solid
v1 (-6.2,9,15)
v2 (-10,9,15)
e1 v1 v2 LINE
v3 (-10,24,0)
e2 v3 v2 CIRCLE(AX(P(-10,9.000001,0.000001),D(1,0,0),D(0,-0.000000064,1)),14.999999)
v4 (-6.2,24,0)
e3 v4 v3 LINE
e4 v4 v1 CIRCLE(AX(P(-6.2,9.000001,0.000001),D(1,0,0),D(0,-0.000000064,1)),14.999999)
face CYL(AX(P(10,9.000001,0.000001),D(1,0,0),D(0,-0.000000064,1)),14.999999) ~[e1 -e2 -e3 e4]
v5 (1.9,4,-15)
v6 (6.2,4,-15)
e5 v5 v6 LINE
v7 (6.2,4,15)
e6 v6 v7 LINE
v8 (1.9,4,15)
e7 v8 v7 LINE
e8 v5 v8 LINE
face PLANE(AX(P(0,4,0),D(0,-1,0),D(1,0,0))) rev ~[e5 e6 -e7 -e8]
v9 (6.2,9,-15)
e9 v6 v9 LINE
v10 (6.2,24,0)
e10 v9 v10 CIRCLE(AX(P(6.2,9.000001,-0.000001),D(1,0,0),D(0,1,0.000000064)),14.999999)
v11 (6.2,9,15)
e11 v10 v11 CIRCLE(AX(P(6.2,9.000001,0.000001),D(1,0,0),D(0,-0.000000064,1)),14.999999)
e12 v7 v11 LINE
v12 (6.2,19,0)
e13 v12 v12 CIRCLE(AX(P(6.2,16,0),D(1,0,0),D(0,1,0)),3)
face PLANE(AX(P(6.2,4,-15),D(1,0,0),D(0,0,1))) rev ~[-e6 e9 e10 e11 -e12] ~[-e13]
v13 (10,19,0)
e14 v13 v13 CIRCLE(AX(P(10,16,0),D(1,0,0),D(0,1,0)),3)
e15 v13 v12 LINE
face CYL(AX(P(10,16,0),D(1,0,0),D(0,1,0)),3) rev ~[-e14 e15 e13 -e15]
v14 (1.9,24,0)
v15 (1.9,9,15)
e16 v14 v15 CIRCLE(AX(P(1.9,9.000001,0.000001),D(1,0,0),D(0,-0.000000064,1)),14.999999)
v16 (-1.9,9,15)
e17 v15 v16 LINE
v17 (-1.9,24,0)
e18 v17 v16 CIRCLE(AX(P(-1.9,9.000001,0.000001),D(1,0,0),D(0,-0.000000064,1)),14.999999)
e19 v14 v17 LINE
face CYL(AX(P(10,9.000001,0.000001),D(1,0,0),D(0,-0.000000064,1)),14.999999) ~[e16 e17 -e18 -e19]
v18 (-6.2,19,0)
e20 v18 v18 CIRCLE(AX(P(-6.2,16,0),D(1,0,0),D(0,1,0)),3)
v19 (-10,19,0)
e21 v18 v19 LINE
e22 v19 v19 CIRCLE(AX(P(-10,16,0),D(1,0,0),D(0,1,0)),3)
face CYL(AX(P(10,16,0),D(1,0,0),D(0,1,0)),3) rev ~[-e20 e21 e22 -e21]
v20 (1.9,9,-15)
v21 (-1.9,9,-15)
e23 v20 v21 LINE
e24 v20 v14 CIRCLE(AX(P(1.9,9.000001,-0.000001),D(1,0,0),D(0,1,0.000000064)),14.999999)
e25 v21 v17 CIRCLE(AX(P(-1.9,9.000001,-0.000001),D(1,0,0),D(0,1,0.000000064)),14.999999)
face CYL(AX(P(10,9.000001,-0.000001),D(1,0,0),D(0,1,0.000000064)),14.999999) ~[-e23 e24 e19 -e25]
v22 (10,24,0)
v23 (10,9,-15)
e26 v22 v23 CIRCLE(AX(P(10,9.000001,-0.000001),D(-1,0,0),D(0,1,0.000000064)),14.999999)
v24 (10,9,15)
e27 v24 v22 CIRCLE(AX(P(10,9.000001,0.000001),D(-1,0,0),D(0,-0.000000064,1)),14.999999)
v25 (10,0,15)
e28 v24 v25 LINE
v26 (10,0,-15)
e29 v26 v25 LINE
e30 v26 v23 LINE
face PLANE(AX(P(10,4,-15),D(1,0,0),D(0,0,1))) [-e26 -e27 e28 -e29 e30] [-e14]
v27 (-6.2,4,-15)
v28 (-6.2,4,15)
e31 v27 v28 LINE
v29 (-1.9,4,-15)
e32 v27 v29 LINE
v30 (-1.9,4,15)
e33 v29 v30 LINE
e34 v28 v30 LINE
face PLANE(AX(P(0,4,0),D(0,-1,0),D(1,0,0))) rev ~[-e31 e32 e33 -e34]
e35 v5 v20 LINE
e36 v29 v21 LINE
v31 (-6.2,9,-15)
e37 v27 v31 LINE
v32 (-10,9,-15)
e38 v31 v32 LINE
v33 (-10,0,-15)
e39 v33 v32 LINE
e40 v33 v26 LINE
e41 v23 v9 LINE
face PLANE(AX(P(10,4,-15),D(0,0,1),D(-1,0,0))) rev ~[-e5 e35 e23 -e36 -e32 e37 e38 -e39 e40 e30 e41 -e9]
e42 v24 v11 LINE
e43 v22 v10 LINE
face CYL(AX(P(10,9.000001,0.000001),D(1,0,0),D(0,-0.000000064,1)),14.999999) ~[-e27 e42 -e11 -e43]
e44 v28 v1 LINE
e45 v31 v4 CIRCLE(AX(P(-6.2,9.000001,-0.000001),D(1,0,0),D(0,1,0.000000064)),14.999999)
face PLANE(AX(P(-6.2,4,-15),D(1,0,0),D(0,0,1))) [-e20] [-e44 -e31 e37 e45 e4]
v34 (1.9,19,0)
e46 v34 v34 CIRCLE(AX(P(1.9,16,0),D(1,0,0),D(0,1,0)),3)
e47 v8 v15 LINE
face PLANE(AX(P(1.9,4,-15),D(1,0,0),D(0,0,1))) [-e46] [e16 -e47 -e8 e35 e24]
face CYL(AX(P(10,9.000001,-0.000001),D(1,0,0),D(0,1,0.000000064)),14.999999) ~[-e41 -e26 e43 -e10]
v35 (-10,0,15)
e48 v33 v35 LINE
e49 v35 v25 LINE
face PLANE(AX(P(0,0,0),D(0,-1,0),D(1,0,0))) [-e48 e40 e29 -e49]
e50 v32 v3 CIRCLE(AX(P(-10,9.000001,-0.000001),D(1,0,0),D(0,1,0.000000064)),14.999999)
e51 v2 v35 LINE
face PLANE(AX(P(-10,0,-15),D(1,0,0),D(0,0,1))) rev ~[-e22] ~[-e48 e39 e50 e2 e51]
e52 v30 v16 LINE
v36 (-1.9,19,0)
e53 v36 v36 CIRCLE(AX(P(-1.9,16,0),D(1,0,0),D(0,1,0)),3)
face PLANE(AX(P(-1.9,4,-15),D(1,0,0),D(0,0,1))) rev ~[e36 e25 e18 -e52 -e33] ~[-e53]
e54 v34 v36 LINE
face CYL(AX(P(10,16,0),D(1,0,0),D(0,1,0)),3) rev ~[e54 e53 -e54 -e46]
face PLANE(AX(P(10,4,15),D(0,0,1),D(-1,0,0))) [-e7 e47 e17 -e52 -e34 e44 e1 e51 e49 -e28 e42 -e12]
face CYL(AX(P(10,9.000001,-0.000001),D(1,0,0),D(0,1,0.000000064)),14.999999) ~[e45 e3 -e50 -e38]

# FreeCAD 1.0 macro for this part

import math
import FreeCAD as App
import Part
import Sketcher
Q = App.Units.Quantity


def add_polygon(sketch, points):
    """Adds a closed chain of lines whose ends are joined by coincident constraints."""
    first, n = sketch.GeometryCount, len(points)
    for a, b in zip(points, points[1:] + points[:1]):
        sketch.addGeometry(Part.LineSegment(App.Vector(*a, 0), App.Vector(*b, 0)), False)
    for i in range(n):
        sketch.addConstraint(Sketcher.Constraint("Coincident", first + i, 2, first + (i + 1) % n, 1))

doc = App.newDocument("Part")
params = doc.addObject("Spreadsheet::Sheet", "Params")
for row, (alias, value) in enumerate([
    ("sketch1_width", "20 mm"),
    ("sketch1_height", "30 mm"),
    ("pad1_length", "4 mm"),
    ("sketch2_height", "30 mm"),
    ("sketch2_width", "3.8 mm"),
    ("pad2_length", "20 mm"),
    ("sketch3_radius", "14.999999 mm"),
    ("pocket1_length", "25 mm"),
    ("sketch4_diameter", "6 mm"),
    ("pocket2_length", "25 mm"),
], start=1):
    params.set(f"A{row}", alias)
    params.set(f"B{row}", "=" + value)
    params.setAlias(f"B{row}", alias)

body = doc.addObject("PartDesign::Body", "Body")

# Sketch on XZ plane
sketch1 = doc.addObject("Sketcher::SketchObject", "Sketch")
body.addObject(sketch1)
sketch1.AttachmentSupport = (doc.XZ_Plane, [""])
sketch1.MapMode = "FlatFace"
add_polygon(sketch1, [(-10, 15), (-10, -15), (10, -15), (10, 15)])  # lines 0-3
sketch1.addConstraint(Sketcher.Constraint("Vertical", 0))
sketch1.addConstraint(Sketcher.Constraint("Horizontal", 1))
sketch1.addConstraint(Sketcher.Constraint("Vertical", 2))
sketch1.addConstraint(Sketcher.Constraint("Horizontal", 3))
sketch1.addConstraint(Sketcher.Constraint("Symmetric", 0, 2, 2, 2, -1, 1))
sketch1.addConstraint(Sketcher.Constraint("DistanceX", 1, 1, 1, 2, Q("20 mm")))
sketch1.addConstraint(Sketcher.Constraint("DistanceY", 0, 2, 0, 1, Q("30 mm")))
sketch1.setExpression("Constraints[9]", "Params.sketch1_width")
sketch1.setExpression("Constraints[10]", "Params.sketch1_height")
pad1 = doc.addObject("PartDesign::Pad", "Pad")
body.addObject(pad1)
pad1.Profile = sketch1
pad1.setExpression("Length", "Params.pad1_length")
pad1.Reversed = True

# Sketch on XZ plane
sketch2 = doc.addObject("Sketcher::SketchObject", "Sketch001")
body.addObject(sketch2)
sketch2.AttachmentSupport = (doc.XZ_Plane, [""])
sketch2.MapMode = "FlatFace"
sketch2.AttachmentOffset = App.Placement(App.Vector(0, 0, -4), App.Rotation())
add_polygon(sketch2, [(10, 15), (10, -15), (6.2, -15), (6.2, 15)])  # lines 0-3
add_polygon(sketch2, [(-6.2, 15), (-6.2, -15), (-10, -15), (-10, 15)])  # lines 4-7
add_polygon(sketch2, [(1.9, 15), (1.9, -15), (-1.9, -15), (-1.9, 15)])  # lines 8-11
sketch2.addConstraint(Sketcher.Constraint("Vertical", 0))
sketch2.addConstraint(Sketcher.Constraint("Horizontal", 1))
sketch2.addConstraint(Sketcher.Constraint("Vertical", 2))
sketch2.addConstraint(Sketcher.Constraint("Horizontal", 3))
sketch2.addConstraint(Sketcher.Constraint("Vertical", 4))
sketch2.addConstraint(Sketcher.Constraint("Horizontal", 5))
sketch2.addConstraint(Sketcher.Constraint("Vertical", 6))
sketch2.addConstraint(Sketcher.Constraint("Horizontal", 7))
sketch2.addConstraint(Sketcher.Constraint("Vertical", 8))
sketch2.addConstraint(Sketcher.Constraint("Horizontal", 9))
sketch2.addConstraint(Sketcher.Constraint("Vertical", 10))
sketch2.addConstraint(Sketcher.Constraint("Horizontal", 11))
sketch2.addConstraint(Sketcher.Constraint("Symmetric", 2, 2, 4, 2, -1, 1))
sketch2.addConstraint(Sketcher.Constraint("Symmetric", 0, 2, 6, 2, -1, 1))
sketch2.addConstraint(Sketcher.Constraint("Symmetric", 8, 2, 10, 2, -1, 1))
sketch2.addConstraint(Sketcher.Constraint("Horizontal", 1, 2, 4, 2))
sketch2.addConstraint(Sketcher.Constraint("Horizontal", 5, 2, 8, 2))
sketch2.addConstraint(Sketcher.Constraint("Equal", 7, 9))
sketch2.addConstraint(Sketcher.Constraint("DistanceY", 0, 2, 0, 1, Q("30 mm")))
sketch2.addConstraint(Sketcher.Constraint("DistanceX", 1, 2, 1, 1, Q("3.8 mm")))
sketch2.addConstraint(Sketcher.Constraint("DistanceX", -1, 1, 0, 2, Q("10 mm")))
sketch2.setExpression("Constraints[30]", "Params.sketch2_height")
sketch2.setExpression("Constraints[31]", "Params.sketch2_width")
pad2 = doc.addObject("PartDesign::Pad", "Pad001")
body.addObject(pad2)
pad2.Profile = sketch2
pad2.setExpression("Length", "Params.pad2_length")
pad2.Reversed = True

# Sketch on YZ plane
sketch3 = doc.addObject("Sketcher::SketchObject", "Sketch002")
body.addObject(sketch3)
sketch3.AttachmentSupport = (doc.YZ_Plane, [""])
sketch3.MapMode = "FlatFace"
sketch3.AttachmentOffset = App.Placement(App.Vector(0, 0, 10), App.Rotation())
sketch3.addGeometry(Part.ArcOfCircle(Part.Circle(App.Vector(9, 0, 0), App.Vector(0, 0, 1), 15), math.radians(0), math.radians(90)), False)
sketch3.addGeometry(Part.LineSegment(App.Vector(24, 0, 0), App.Vector(24, 15, 0)), False)
sketch3.addGeometry(Part.LineSegment(App.Vector(24, 15, 0), App.Vector(9, 15, 0)), False)
sketch3.addGeometry(Part.LineSegment(App.Vector(24, -15, 0), App.Vector(24, 0, 0)), False)
sketch3.addGeometry(Part.ArcOfCircle(Part.Circle(App.Vector(9, 0, 0), App.Vector(0, 0, 1), 15), math.radians(-90), math.radians(0)), False)
sketch3.addGeometry(Part.LineSegment(App.Vector(9, -15, 0), App.Vector(24, -15, 0)), False)
sketch3.addConstraint(Sketcher.Constraint("Tangent", 0, 1, 1, 1))
sketch3.addConstraint(Sketcher.Constraint("Coincident", 1, 2, 2, 1))
sketch3.addConstraint(Sketcher.Constraint("Tangent", 2, 2, 0, 2))
sketch3.addConstraint(Sketcher.Constraint("Tangent", 3, 2, 4, 2))
sketch3.addConstraint(Sketcher.Constraint("Tangent", 4, 1, 5, 1))
sketch3.addConstraint(Sketcher.Constraint("Coincident", 5, 2, 3, 1))
sketch3.addConstraint(Sketcher.Constraint("Vertical", 1))
sketch3.addConstraint(Sketcher.Constraint("Horizontal", 2))
sketch3.addConstraint(Sketcher.Constraint("Vertical", 3))
sketch3.addConstraint(Sketcher.Constraint("Horizontal", 5))
sketch3.addConstraint(Sketcher.Constraint("Coincident", 4, 3, 0, 3))
sketch3.addConstraint(Sketcher.Constraint("Equal", 0, 4))
sketch3.addConstraint(Sketcher.Constraint("PointOnObject", 0, 3, -1))
sketch3.addConstraint(Sketcher.Constraint("Radius", 0, Q("14.999999 mm")))
sketch3.addConstraint(Sketcher.Constraint("DistanceX", -1, 1, 0, 3, Q("9.000001 mm")))
sketch3.setExpression("Constraints[13]", "Params.sketch3_radius")
pocket1 = doc.addObject("PartDesign::Pocket", "Pocket")
body.addObject(pocket1)
pocket1.Profile = sketch3
pocket1.setExpression("Length", "Params.pocket1_length")

# Sketch on YZ plane
sketch4 = doc.addObject("Sketcher::SketchObject", "Sketch003")
body.addObject(sketch4)
sketch4.AttachmentSupport = (doc.YZ_Plane, [""])
sketch4.MapMode = "FlatFace"
sketch4.AttachmentOffset = App.Placement(App.Vector(0, 0, 10), App.Rotation())
sketch4.addGeometry(Part.Circle(App.Vector(16, 0, 0), App.Vector(0, 0, 1), 3), False)
sketch4.addConstraint(Sketcher.Constraint("PointOnObject", 0, 3, -1))
sketch4.addConstraint(Sketcher.Constraint("Diameter", 0, Q("6 mm")))
sketch4.addConstraint(Sketcher.Constraint("DistanceX", -1, 1, 0, 3, Q("16 mm")))
sketch4.setExpression("Constraints[1]", "Params.sketch4_diameter")
pocket2 = doc.addObject("PartDesign::Pocket", "Pocket001")
body.addObject(pocket2)
pocket2.Profile = sketch4
pocket2.setExpression("Length", "Params.pocket2_length")

doc.recompute()
